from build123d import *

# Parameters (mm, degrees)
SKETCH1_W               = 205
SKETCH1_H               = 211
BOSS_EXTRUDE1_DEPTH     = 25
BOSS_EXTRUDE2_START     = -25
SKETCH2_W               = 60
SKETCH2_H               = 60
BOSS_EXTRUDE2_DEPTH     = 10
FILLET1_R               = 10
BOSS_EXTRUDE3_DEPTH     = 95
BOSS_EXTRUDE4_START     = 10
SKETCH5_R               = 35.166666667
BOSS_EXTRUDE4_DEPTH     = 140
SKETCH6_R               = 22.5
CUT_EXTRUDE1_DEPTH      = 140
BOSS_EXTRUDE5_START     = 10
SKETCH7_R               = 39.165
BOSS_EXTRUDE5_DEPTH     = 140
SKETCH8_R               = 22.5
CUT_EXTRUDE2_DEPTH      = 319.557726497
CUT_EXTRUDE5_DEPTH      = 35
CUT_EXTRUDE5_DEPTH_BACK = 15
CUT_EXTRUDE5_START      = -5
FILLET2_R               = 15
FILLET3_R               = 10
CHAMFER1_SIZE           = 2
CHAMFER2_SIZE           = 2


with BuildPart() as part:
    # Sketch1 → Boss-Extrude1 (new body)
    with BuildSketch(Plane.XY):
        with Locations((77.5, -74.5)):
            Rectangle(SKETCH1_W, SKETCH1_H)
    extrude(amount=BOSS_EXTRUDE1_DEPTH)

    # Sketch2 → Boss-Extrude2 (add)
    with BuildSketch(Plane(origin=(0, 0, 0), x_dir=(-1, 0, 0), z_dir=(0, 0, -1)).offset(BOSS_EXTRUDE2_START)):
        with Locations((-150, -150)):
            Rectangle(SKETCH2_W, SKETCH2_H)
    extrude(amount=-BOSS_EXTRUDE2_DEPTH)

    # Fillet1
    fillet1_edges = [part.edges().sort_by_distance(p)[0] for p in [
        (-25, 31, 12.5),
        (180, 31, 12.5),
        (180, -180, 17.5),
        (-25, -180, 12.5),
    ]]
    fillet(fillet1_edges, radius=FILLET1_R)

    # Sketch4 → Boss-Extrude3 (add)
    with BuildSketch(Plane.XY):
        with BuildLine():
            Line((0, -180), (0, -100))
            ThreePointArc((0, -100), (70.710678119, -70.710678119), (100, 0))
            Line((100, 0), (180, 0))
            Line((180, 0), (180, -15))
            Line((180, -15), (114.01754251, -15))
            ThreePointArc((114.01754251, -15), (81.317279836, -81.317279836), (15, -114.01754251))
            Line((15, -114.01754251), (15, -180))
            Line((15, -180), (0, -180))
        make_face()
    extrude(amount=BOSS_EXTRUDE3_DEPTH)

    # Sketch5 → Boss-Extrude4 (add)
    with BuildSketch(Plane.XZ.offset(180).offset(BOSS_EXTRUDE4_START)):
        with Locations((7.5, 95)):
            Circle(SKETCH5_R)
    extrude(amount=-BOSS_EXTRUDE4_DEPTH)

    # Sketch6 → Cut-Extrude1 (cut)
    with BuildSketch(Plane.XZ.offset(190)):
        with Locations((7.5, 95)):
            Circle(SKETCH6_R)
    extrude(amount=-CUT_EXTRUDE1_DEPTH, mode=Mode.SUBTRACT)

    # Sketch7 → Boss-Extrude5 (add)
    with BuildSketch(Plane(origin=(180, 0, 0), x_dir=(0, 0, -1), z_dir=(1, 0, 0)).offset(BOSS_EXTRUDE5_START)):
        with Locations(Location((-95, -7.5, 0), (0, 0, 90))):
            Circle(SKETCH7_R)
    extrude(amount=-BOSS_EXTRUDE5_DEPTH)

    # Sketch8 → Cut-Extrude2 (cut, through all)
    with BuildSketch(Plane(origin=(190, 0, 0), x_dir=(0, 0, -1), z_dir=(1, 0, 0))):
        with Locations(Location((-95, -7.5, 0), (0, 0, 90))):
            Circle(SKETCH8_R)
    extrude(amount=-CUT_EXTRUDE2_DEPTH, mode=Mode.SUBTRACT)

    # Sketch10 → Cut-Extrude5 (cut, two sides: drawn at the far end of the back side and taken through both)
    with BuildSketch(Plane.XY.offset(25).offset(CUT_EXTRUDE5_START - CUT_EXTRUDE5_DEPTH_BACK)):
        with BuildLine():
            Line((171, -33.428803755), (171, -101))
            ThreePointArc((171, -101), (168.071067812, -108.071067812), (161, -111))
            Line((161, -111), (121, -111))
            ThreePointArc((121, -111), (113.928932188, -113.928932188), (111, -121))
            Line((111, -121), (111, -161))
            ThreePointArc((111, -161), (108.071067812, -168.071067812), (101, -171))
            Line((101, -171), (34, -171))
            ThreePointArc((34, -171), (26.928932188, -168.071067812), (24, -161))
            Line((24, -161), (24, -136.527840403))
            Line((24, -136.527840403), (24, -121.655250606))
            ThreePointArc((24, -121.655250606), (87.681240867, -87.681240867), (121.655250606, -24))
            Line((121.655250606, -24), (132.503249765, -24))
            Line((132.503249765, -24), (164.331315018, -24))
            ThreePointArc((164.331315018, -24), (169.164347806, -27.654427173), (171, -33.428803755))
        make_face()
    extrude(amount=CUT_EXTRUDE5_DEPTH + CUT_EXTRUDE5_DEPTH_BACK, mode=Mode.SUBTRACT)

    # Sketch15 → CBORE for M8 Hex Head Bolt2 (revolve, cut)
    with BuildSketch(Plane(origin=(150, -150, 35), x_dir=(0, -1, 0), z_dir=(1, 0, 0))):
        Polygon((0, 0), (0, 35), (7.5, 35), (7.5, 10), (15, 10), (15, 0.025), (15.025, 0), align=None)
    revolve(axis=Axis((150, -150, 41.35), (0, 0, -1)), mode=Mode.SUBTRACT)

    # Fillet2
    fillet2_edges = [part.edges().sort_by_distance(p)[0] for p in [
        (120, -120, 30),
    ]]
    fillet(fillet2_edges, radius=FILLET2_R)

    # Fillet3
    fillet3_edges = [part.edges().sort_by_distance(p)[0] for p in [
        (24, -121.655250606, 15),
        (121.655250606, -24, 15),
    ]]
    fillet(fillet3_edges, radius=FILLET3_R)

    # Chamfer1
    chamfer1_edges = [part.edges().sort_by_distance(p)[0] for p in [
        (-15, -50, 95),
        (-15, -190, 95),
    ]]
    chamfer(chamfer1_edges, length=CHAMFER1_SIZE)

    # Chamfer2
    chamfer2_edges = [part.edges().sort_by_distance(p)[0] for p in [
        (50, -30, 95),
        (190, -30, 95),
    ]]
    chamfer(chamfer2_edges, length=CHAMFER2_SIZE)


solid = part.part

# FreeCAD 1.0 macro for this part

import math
import FreeCAD as App
import Part
import Sketcher

V = App.Vector
Q = App.Units.Quantity


def edges_at(feature, points):
    """Names of the edges that pass closest to the given points."""
    edges = feature.Shape.Edges
    near = lambda p: min(range(len(edges)), key=lambda i: edges[i].distToShape(Part.Vertex(*p))[0])
    return sorted({f"Edge{near(p) + 1}" for p in points})

doc = App.newDocument("Part")
params = doc.addObject("Spreadsheet::Sheet", "Params")
for row, (alias, value) in enumerate([
    ("sketch1_width", "205 mm"),
    ("sketch1_height", "211 mm"),
    ("pad1_length", "25 mm"),
    ("sketch2_width", "60 mm"),
    ("pad2_length", "10 mm"),
    ("fillet_radius", "10 mm"),
    ("sketch3_radius", "115 mm"),
    ("sketch3_radius2", "100 mm"),
    ("sketch3_width", "15 mm"),
    ("sketch3_width2", "80 mm"),
    ("pad3_length", "95 mm"),
    ("pad4_length", "140 mm"),
    ("sketch5_diameter", "45 mm"),
    ("pocket1_length", "140 mm"),
    ("sketch6_diameter", "78.33 mm"),
    ("pad5_length", "140 mm"),
    ("sketch7_diameter", "45 mm"),
    ("sketch8_radius", "10 mm"),
    ("sketch8_radius2", "124 mm"),
    ("sketch8_width", "67 mm"),
    ("sketch8_width2", "40 mm"),
    ("pocket3_length", "35 mm"),
    ("pocket3_length2", "15 mm"),
    ("sketch9_height", "35 mm"),
    ("sketch9_height2", "25 mm"),
    ("sketch9_width", "7.5 mm"),
    ("groove_angle", "360 deg"),
    ("fillet2_radius", "15 mm"),
    ("fillet3_radius", "10 mm"),
    ("chamfer_size", "2 mm"),
    ("chamfer2_size", "2 mm"),
], start=1):
    params.set(f"A{row}", alias)
    params.set(f"B{row}", "=" + value)
    params.setAlias(f"B{row}", alias)

body = doc.addObject("PartDesign::Body", "Body")

sketch1 = body.newObject("Sketcher::SketchObject", "Sketch")
sketch1.AttachmentSupport = (doc.getObject("XY_Plane"), [""])
sketch1.MapMode = "FlatFace"
sketch1.addGeometry(Part.LineSegment(V(-25, 31, 0), V(-25, -180, 0)), False)
sketch1.addGeometry(Part.LineSegment(V(-25, -180, 0), V(180, -180, 0)), False)
sketch1.addGeometry(Part.LineSegment(V(180, -180, 0), V(180, 31, 0)), False)
sketch1.addGeometry(Part.LineSegment(V(180, 31, 0), V(-25, 31, 0)), False)
sketch1.addConstraint(Sketcher.Constraint("Coincident", 0, 2, 1, 1))
sketch1.addConstraint(Sketcher.Constraint("Coincident", 1, 2, 2, 1))
sketch1.addConstraint(Sketcher.Constraint("Coincident", 2, 2, 3, 1))
sketch1.addConstraint(Sketcher.Constraint("Coincident", 3, 2, 0, 1))
sketch1.addConstraint(Sketcher.Constraint("Vertical", 0))
sketch1.addConstraint(Sketcher.Constraint("Horizontal", 1))
sketch1.addConstraint(Sketcher.Constraint("Vertical", 2))
sketch1.addConstraint(Sketcher.Constraint("Horizontal", 3))
sketch1.addConstraint(Sketcher.Constraint("DistanceX", 1, 1, 1, 2, 205.0))
sketch1.addConstraint(Sketcher.Constraint("DistanceY", 0, 2, 0, 1, 211.0))
sketch1.addConstraint(Sketcher.Constraint("DistanceX", 0, 2, -1, 1, 25.0))
sketch1.addConstraint(Sketcher.Constraint("DistanceY", 0, 2, -1, 1, 180.0))
sketch1.setExpression("Constraints[8]", "Params.sketch1_width")
sketch1.setExpression("Constraints[9]", "Params.sketch1_height")
pad1 = body.newObject("PartDesign::Pad", "Pad")
pad1.Profile = sketch1
pad1.setExpression("Length", "Params.pad1_length")

sketch2 = body.newObject("Sketcher::SketchObject", "Sketch001")
sketch2.AttachmentSupport = (doc.getObject("XY_Plane"), [""])
sketch2.MapMode = "FlatFace"
sketch2.AttachmentOffset = App.Placement(V(0, 0, 25), App.Rotation())
sketch2.addGeometry(Part.LineSegment(V(180, -120, 0), V(180, -180, 0)), False)
sketch2.addGeometry(Part.LineSegment(V(180, -180, 0), V(120, -180, 0)), False)
sketch2.addGeometry(Part.LineSegment(V(120, -180, 0), V(120, -120, 0)), False)
sketch2.addGeometry(Part.LineSegment(V(120, -120, 0), V(180, -120, 0)), False)
sketch2.addConstraint(Sketcher.Constraint("Coincident", 0, 2, 1, 1))
sketch2.addConstraint(Sketcher.Constraint("Coincident", 1, 2, 2, 1))
sketch2.addConstraint(Sketcher.Constraint("Coincident", 2, 2, 3, 1))
sketch2.addConstraint(Sketcher.Constraint("Coincident", 3, 2, 0, 1))
sketch2.addConstraint(Sketcher.Constraint("Vertical", 0))
sketch2.addConstraint(Sketcher.Constraint("Horizontal", 1))
sketch2.addConstraint(Sketcher.Constraint("Vertical", 2))
sketch2.addConstraint(Sketcher.Constraint("Horizontal", 3))
sketch2.addConstraint(Sketcher.Constraint("Equal", 3, 0))
sketch2.addConstraint(Sketcher.Constraint("DistanceX", 1, 2, 1, 1, 60.0))
sketch2.addConstraint(Sketcher.Constraint("DistanceX", -1, 1, 0, 2, 180.0))
sketch2.addConstraint(Sketcher.Constraint("DistanceY", 0, 2, -1, 1, 180.0))
sketch2.setExpression("Constraints[9]", "Params.sketch2_width")
pad2 = body.newObject("PartDesign::Pad", "Pad001")
pad2.Profile = sketch2
pad2.setExpression("Length", "Params.pad2_length")
doc.recompute()

fillet = body.newObject("PartDesign::Fillet", "Fillet")
fillet.Base = (pad2, edges_at(pad2, [
    (-25, 31, 12.5),
    (180, 31, 12.5),
    (180, -180, 17.5),
    (-25, -180, 12.5),
]))
fillet.setExpression("Radius", "Params.fillet_radius")

sketch3 = body.newObject("Sketcher::SketchObject", "Sketch002")
sketch3.AttachmentSupport = (doc.getObject("XY_Plane"), [""])
sketch3.MapMode = "FlatFace"
sketch3.addGeometry(Part.LineSegment(V(0, -100, 0), V(0, -180, 0)), False)
sketch3.addGeometry(Part.LineSegment(V(0, -180, 0), V(15, -180, 0)), False)
sketch3.addGeometry(Part.LineSegment(V(15, -180, 0), V(15, -114, 0)), False)
sketch3.addGeometry(Part.ArcOfCircle(Part.Circle(V(0, 0, 0), V(0, 0, 1), 115), math.radians(-83), math.radians(-7)), False)
sketch3.addGeometry(Part.LineSegment(V(114, -15, 0), V(180, -15, 0)), False)
sketch3.addGeometry(Part.LineSegment(V(180, -15, 0), V(180, 0, 0)), False)
sketch3.addGeometry(Part.LineSegment(V(180, 0, 0), V(100, 0, 0)), False)
sketch3.addGeometry(Part.ArcOfCircle(Part.Circle(V(0, 0, 0), V(0, 0, 1), 100), math.radians(-90), math.radians(0)), False)
sketch3.addConstraint(Sketcher.Constraint("Coincident", 0, 2, 1, 1))
sketch3.addConstraint(Sketcher.Constraint("Coincident", 1, 2, 2, 1))
sketch3.addConstraint(Sketcher.Constraint("Coincident", 2, 2, 3, 1))
sketch3.addConstraint(Sketcher.Constraint("Coincident", 3, 2, 4, 1))
sketch3.addConstraint(Sketcher.Constraint("Coincident", 4, 2, 5, 1))
sketch3.addConstraint(Sketcher.Constraint("Coincident", 5, 2, 6, 1))
sketch3.addConstraint(Sketcher.Constraint("Coincident", 6, 2, 7, 2))
sketch3.addConstraint(Sketcher.Constraint("Coincident", 7, 1, 0, 1))
sketch3.addConstraint(Sketcher.Constraint("Vertical", 0))
sketch3.addConstraint(Sketcher.Constraint("Horizontal", 1))
sketch3.addConstraint(Sketcher.Constraint("Vertical", 2))
sketch3.addConstraint(Sketcher.Constraint("Horizontal", 4))
sketch3.addConstraint(Sketcher.Constraint("Vertical", 5))
sketch3.addConstraint(Sketcher.Constraint("Horizontal", 6))
sketch3.addConstraint(Sketcher.Constraint("Coincident", 3, 3, -1, 1))
sketch3.addConstraint(Sketcher.Constraint("Coincident", 7, 3, -1, 1))
sketch3.addConstraint(Sketcher.Constraint("PointOnObject", 0, 2, -2))
sketch3.addConstraint(Sketcher.Constraint("PointOnObject", 5, 2, -1))
sketch3.addConstraint(Sketcher.Constraint("Equal", 6, 0))
sketch3.addConstraint(Sketcher.Constraint("Equal", 4, 2))
sketch3.addConstraint(Sketcher.Constraint("Radius", 3, 115.0))
sketch3.addConstraint(Sketcher.Constraint("Radius", 7, 100.0))
sketch3.addConstraint(Sketcher.Constraint("DistanceX", 1, 1, 1, 2, 15.0))
sketch3.addConstraint(Sketcher.Constraint("DistanceX", 6, 2, 6, 1, 80.0))
sketch3.setExpression("Constraints[20]", "Params.sketch3_radius")
sketch3.setExpression("Constraints[21]", "Params.sketch3_radius2")
sketch3.setExpression("Constraints[22]", "Params.sketch3_width")
sketch3.setExpression("Constraints[23]", "Params.sketch3_width2")
pad3 = body.newObject("PartDesign::Pad", "Pad002")
pad3.Profile = sketch3
pad3.setExpression("Length", "Params.pad3_length")

sketch4 = body.newObject("Sketcher::SketchObject", "Sketch003")
sketch4.AttachmentSupport = (doc.getObject("XZ_Plane"), [""])
sketch4.MapMode = "FlatFace"
sketch4.AttachmentOffset = App.Placement(V(0, 0, 190), App.Rotation())
sketch4.addGeometry(Part.Circle(V(8, 95, 0), V(0, 0, 1), 35), False)
sketch4.addConstraint(Sketcher.Constraint("DistanceY", -1, 1, 0, 3, 95.0))
sketch4.addConstraint(Sketcher.Constraint("DistanceX", -1, 1, 0, 3, 7.5))
sketch4.addConstraint(Sketcher.Constraint("Diameter", 0, 70.333333))
pad4 = body.newObject("PartDesign::Pad", "Pad003")
pad4.Profile = sketch4
pad4.setExpression("Length", "Params.pad4_length")
pad4.Reversed = True

sketch5 = body.newObject("Sketcher::SketchObject", "Sketch004")
sketch5.AttachmentSupport = (doc.getObject("XZ_Plane"), [""])
sketch5.MapMode = "FlatFace"
sketch5.AttachmentOffset = App.Placement(V(0, 0, 190), App.Rotation())
sketch5.addGeometry(Part.Circle(V(8, 95, 0), V(0, 0, 1), 22), False)
sketch5.addConstraint(Sketcher.Constraint("Diameter", 0, 45.0))
sketch5.addConstraint(Sketcher.Constraint("DistanceY", -1, 1, 0, 3, 95.0))
sketch5.addConstraint(Sketcher.Constraint("DistanceX", -1, 1, 0, 3, 7.5))
sketch5.setExpression("Constraints[0]", "Params.sketch5_diameter")
pocket1 = body.newObject("PartDesign::Pocket", "Pocket")
pocket1.Profile = sketch5
pocket1.setExpression("Length", "Params.pocket1_length")

sketch6 = body.newObject("Sketcher::SketchObject", "Sketch005")
sketch6.AttachmentSupport = (doc.getObject("YZ_Plane"), [""])
sketch6.MapMode = "FlatFace"
sketch6.AttachmentOffset = App.Placement(V(0, 0, 190), App.Rotation())
sketch6.addGeometry(Part.Circle(V(-8, 95, 0), V(0, 0, 1), 39), False)
sketch6.addConstraint(Sketcher.Constraint("Diameter", 0, 78.33))
sketch6.addConstraint(Sketcher.Constraint("DistanceY", -1, 1, 0, 3, 95.0))
sketch6.addConstraint(Sketcher.Constraint("DistanceX", 0, 3, -1, 1, 7.5))
sketch6.setExpression("Constraints[0]", "Params.sketch6_diameter")
pad5 = body.newObject("PartDesign::Pad", "Pad004")
pad5.Profile = sketch6
pad5.setExpression("Length", "Params.pad5_length")
pad5.Reversed = True

sketch7 = body.newObject("Sketcher::SketchObject", "Sketch006")
sketch7.AttachmentSupport = (doc.getObject("YZ_Plane"), [""])
sketch7.MapMode = "FlatFace"
sketch7.AttachmentOffset = App.Placement(V(0, 0, 190), App.Rotation())
sketch7.addGeometry(Part.Circle(V(-8, 95, 0), V(0, 0, 1), 22), False)
sketch7.addConstraint(Sketcher.Constraint("Diameter", 0, 45.0))
sketch7.addConstraint(Sketcher.Constraint("DistanceY", -1, 1, 0, 3, 95.0))
sketch7.addConstraint(Sketcher.Constraint("DistanceX", 0, 3, -1, 1, 7.5))
sketch7.setExpression("Constraints[0]", "Params.sketch7_diameter")
pocket2 = body.newObject("PartDesign::Pocket", "Pocket001")
pocket2.Profile = sketch7
pocket2.Type = "ThroughAll"

sketch8 = body.newObject("Sketcher::SketchObject", "Sketch007")
sketch8.AttachmentSupport = (doc.getObject("XY_Plane"), [""])
sketch8.MapMode = "FlatFace"
sketch8.AttachmentOffset = App.Placement(V(0, 0, 20), App.Rotation())
sketch8.addGeometry(Part.LineSegment(V(171, -101, 0), V(171, -33, 0)), False)
sketch8.addGeometry(Part.ArcOfCircle(Part.Circle(V(161, -33, 0), V(0, 0, 1), 10), math.radians(0), math.radians(71)), False)
sketch8.addGeometry(Part.LineSegment(V(164, -24, 0), V(122, -24, 0)), False)
sketch8.addGeometry(Part.ArcOfCircle(Part.Circle(V(0, 0, 0), V(0, 0, 1), 124), math.radians(-79), math.radians(-11)), False)
sketch8.addGeometry(Part.LineSegment(V(24, -122, 0), V(24, -161, 0)), False)
sketch8.addGeometry(Part.ArcOfCircle(Part.Circle(V(34, -161, 0), V(0, 0, 1), 10), math.radians(180), math.radians(270)), False)
sketch8.addGeometry(Part.LineSegment(V(34, -171, 0), V(101, -171, 0)), False)
sketch8.addGeometry(Part.ArcOfCircle(Part.Circle(V(101, -161, 0), V(0, 0, 1), 10), math.radians(-90), math.radians(0)), False)
sketch8.addGeometry(Part.LineSegment(V(111, -161, 0), V(111, -121, 0)), False)
sketch8.addGeometry(Part.ArcOfCircle(Part.Circle(V(121, -121, 0), V(0, 0, 1), 10), math.radians(90), math.radians(180)), False)
sketch8.addGeometry(Part.LineSegment(V(121, -111, 0), V(161, -111, 0)), False)
sketch8.addGeometry(Part.ArcOfCircle(Part.Circle(V(161, -101, 0), V(0, 0, 1), 10), math.radians(-90), math.radians(0)), False)
sketch8.addConstraint(Sketcher.Constraint("Tangent", 0, 2, 1, 1))
sketch8.addConstraint(Sketcher.Constraint("Coincident", 1, 2, 2, 1))
sketch8.addConstraint(Sketcher.Constraint("Coincident", 2, 2, 3, 2))
sketch8.addConstraint(Sketcher.Constraint("Coincident", 3, 1, 4, 1))
sketch8.addConstraint(Sketcher.Constraint("Tangent", 4, 2, 5, 1))
sketch8.addConstraint(Sketcher.Constraint("Tangent", 5, 2, 6, 1))
sketch8.addConstraint(Sketcher.Constraint("Tangent", 6, 2, 7, 1))
sketch8.addConstraint(Sketcher.Constraint("Tangent", 7, 2, 8, 1))
sketch8.addConstraint(Sketcher.Constraint("Tangent", 8, 2, 9, 2))
sketch8.addConstraint(Sketcher.Constraint("Tangent", 9, 1, 10, 1))
sketch8.addConstraint(Sketcher.Constraint("Tangent", 10, 2, 11, 1))
sketch8.addConstraint(Sketcher.Constraint("Tangent", 11, 2, 0, 1))
sketch8.addConstraint(Sketcher.Constraint("Vertical", 0))
sketch8.addConstraint(Sketcher.Constraint("Horizontal", 2))
sketch8.addConstraint(Sketcher.Constraint("Vertical", 4))
sketch8.addConstraint(Sketcher.Constraint("Horizontal", 6))
sketch8.addConstraint(Sketcher.Constraint("Vertical", 8))
sketch8.addConstraint(Sketcher.Constraint("Horizontal", 10))
sketch8.addConstraint(Sketcher.Constraint("Coincident", 3, 3, -1, 1))
sketch8.addConstraint(Sketcher.Constraint("Equal", 1, 5))
sketch8.addConstraint(Sketcher.Constraint("Equal", 5, 7))
sketch8.addConstraint(Sketcher.Constraint("Equal", 7, 9))
sketch8.addConstraint(Sketcher.Constraint("Equal", 9, 11))
sketch8.addConstraint(Sketcher.Constraint("Equal", 10, 8))
sketch8.addConstraint(Sketcher.Constraint("Radius", 1, 10.0))
sketch8.addConstraint(Sketcher.Constraint("Radius", 3, 124.0))
sketch8.addConstraint(Sketcher.Constraint("DistanceX", 6, 1, 6, 2, 67.0))
sketch8.addConstraint(Sketcher.Constraint("DistanceX", 10, 1, 10, 2, 40.0))
sketch8.addConstraint(Sketcher.Constraint("DistanceX", -1, 1, 1, 3, 161.0))
sketch8.addConstraint(Sketcher.Constraint("DistanceY", 5, 3, -1, 1, 161.0))
sketch8.addConstraint(Sketcher.Constraint("DistanceY", 1, 2, -1, 1, 24.0))
sketch8.addConstraint(Sketcher.Constraint("DistanceX", 2, 2, 2, 1, 42.676064))
sketch8.setExpression("Constraints[24]", "Params.sketch8_radius")
sketch8.setExpression("Constraints[25]", "Params.sketch8_radius2")
sketch8.setExpression("Constraints[26]", "Params.sketch8_width")
sketch8.setExpression("Constraints[27]", "Params.sketch8_width2")
pocket3 = body.newObject("PartDesign::Pocket", "Pocket002")
pocket3.Profile = sketch8
pocket3.Type = "TwoLengths"
pocket3.setExpression("Length", "Params.pocket3_length")
pocket3.setExpression("Length2", "Params.pocket3_length2")
pocket3.Reversed = True

sketch9 = body.newObject("Sketcher::SketchObject", "Sketch008")
sketch9.AttachmentSupport = (doc.getObject("YZ_Plane"), [""])
sketch9.MapMode = "FlatFace"
sketch9.AttachmentOffset = App.Placement(V(0, 0, 150), App.Rotation())
sketch9.addGeometry(Part.LineSegment(V(-150, 0, 0), V(-150, 35, 0)), False)
sketch9.addGeometry(Part.LineSegment(V(-150, 35, 0), V(-165.025, 35, 0)), False)
sketch9.addGeometry(Part.LineSegment(V(-165.025, 35, 0), V(-165, 34.975, 0)), False)
sketch9.addGeometry(Part.LineSegment(V(-165, 34.975, 0), V(-165, 25, 0)), False)
sketch9.addGeometry(Part.LineSegment(V(-165, 25, 0), V(-157.5, 25, 0)), False)
sketch9.addGeometry(Part.LineSegment(V(-157.5, 25, 0), V(-157.5, 0, 0)), False)
sketch9.addGeometry(Part.LineSegment(V(-157.5, 0, 0), V(-150, 0, 0)), False)
sketch9.addGeometry(Part.LineSegment(V(-150, 35, 0), V(-150, 0, 0)), True)
sketch9.addConstraint(Sketcher.Constraint("Coincident", 0, 2, 1, 1))
sketch9.addConstraint(Sketcher.Constraint("Coincident", 1, 2, 2, 1))
sketch9.addConstraint(Sketcher.Constraint("Coincident", 2, 2, 3, 1))
sketch9.addConstraint(Sketcher.Constraint("Coincident", 3, 2, 4, 1))
sketch9.addConstraint(Sketcher.Constraint("Coincident", 4, 2, 5, 1))
sketch9.addConstraint(Sketcher.Constraint("Coincident", 5, 2, 6, 1))
sketch9.addConstraint(Sketcher.Constraint("Coincident", 6, 2, 0, 1))
sketch9.addConstraint(Sketcher.Constraint("Vertical", 0))
sketch9.addConstraint(Sketcher.Constraint("Horizontal", 1))
sketch9.addConstraint(Sketcher.Constraint("Vertical", 3))
sketch9.addConstraint(Sketcher.Constraint("Horizontal", 4))
sketch9.addConstraint(Sketcher.Constraint("Vertical", 5))
sketch9.addConstraint(Sketcher.Constraint("Horizontal", 6))
sketch9.addConstraint(Sketcher.Constraint("Vertical", 7))
sketch9.addConstraint(Sketcher.Constraint("Coincident", 7, 1, 0, 2))
sketch9.addConstraint(Sketcher.Constraint("PointOnObject", 5, 2, -1))
sketch9.addConstraint(Sketcher.Constraint("PointOnObject", 7, 2, -1))
sketch9.addConstraint(Sketcher.Constraint("Equal", 4, 6))
sketch9.addConstraint(Sketcher.Constraint("DistanceY", 0, 1, 0, 2, 35.0))
sketch9.addConstraint(Sketcher.Constraint("DistanceY", 5, 2, 5, 1, 25.0))
sketch9.addConstraint(Sketcher.Constraint("Angle", 2, Q("-45 deg")))
sketch9.addConstraint(Sketcher.Constraint("DistanceX", 4, 1, 4, 2, 7.5))
sketch9.addConstraint(Sketcher.Constraint("DistanceX", 0, 2, -1, 1, 150.0))
sketch9.addConstraint(Sketcher.Constraint("DistanceX", 1, 2, 1, 1, 15.025))
sketch9.setExpression("Constraints[18]", "Params.sketch9_height")
sketch9.setExpression("Constraints[19]", "Params.sketch9_height2")
sketch9.setExpression("Constraints[21]", "Params.sketch9_width")
groove = body.newObject("PartDesign::Groove", "Groove")
groove.Profile = sketch9
groove.ReferenceAxis = (sketch9, ["Axis0"])
groove.setExpression("Angle", "Params.groove_angle")
doc.recompute()

fillet2 = body.newObject("PartDesign::Fillet", "Fillet001")
fillet2.Base = (groove, edges_at(groove, [(120, -120, 30)]))
fillet2.setExpression("Radius", "Params.fillet2_radius")
doc.recompute()

fillet3 = body.newObject("PartDesign::Fillet", "Fillet002")
fillet3.Base = (fillet2, edges_at(fillet2, [(24, -121.655, 15), (121.655, -24, 15)]))
fillet3.setExpression("Radius", "Params.fillet3_radius")
doc.recompute()

chamfer = body.newObject("PartDesign::Chamfer", "Chamfer")
chamfer.Base = (fillet3, edges_at(fillet3, [(-15, -50, 95), (-15, -190, 95)]))
chamfer.setExpression("Size", "Params.chamfer_size")
doc.recompute()

chamfer2 = body.newObject("PartDesign::Chamfer", "Chamfer001")
chamfer2.Base = (chamfer, edges_at(chamfer, [(50, -30, 95), (190, -30, 95)]))
chamfer2.setExpression("Size", "Params.chamfer2_size")

doc.recompute()
